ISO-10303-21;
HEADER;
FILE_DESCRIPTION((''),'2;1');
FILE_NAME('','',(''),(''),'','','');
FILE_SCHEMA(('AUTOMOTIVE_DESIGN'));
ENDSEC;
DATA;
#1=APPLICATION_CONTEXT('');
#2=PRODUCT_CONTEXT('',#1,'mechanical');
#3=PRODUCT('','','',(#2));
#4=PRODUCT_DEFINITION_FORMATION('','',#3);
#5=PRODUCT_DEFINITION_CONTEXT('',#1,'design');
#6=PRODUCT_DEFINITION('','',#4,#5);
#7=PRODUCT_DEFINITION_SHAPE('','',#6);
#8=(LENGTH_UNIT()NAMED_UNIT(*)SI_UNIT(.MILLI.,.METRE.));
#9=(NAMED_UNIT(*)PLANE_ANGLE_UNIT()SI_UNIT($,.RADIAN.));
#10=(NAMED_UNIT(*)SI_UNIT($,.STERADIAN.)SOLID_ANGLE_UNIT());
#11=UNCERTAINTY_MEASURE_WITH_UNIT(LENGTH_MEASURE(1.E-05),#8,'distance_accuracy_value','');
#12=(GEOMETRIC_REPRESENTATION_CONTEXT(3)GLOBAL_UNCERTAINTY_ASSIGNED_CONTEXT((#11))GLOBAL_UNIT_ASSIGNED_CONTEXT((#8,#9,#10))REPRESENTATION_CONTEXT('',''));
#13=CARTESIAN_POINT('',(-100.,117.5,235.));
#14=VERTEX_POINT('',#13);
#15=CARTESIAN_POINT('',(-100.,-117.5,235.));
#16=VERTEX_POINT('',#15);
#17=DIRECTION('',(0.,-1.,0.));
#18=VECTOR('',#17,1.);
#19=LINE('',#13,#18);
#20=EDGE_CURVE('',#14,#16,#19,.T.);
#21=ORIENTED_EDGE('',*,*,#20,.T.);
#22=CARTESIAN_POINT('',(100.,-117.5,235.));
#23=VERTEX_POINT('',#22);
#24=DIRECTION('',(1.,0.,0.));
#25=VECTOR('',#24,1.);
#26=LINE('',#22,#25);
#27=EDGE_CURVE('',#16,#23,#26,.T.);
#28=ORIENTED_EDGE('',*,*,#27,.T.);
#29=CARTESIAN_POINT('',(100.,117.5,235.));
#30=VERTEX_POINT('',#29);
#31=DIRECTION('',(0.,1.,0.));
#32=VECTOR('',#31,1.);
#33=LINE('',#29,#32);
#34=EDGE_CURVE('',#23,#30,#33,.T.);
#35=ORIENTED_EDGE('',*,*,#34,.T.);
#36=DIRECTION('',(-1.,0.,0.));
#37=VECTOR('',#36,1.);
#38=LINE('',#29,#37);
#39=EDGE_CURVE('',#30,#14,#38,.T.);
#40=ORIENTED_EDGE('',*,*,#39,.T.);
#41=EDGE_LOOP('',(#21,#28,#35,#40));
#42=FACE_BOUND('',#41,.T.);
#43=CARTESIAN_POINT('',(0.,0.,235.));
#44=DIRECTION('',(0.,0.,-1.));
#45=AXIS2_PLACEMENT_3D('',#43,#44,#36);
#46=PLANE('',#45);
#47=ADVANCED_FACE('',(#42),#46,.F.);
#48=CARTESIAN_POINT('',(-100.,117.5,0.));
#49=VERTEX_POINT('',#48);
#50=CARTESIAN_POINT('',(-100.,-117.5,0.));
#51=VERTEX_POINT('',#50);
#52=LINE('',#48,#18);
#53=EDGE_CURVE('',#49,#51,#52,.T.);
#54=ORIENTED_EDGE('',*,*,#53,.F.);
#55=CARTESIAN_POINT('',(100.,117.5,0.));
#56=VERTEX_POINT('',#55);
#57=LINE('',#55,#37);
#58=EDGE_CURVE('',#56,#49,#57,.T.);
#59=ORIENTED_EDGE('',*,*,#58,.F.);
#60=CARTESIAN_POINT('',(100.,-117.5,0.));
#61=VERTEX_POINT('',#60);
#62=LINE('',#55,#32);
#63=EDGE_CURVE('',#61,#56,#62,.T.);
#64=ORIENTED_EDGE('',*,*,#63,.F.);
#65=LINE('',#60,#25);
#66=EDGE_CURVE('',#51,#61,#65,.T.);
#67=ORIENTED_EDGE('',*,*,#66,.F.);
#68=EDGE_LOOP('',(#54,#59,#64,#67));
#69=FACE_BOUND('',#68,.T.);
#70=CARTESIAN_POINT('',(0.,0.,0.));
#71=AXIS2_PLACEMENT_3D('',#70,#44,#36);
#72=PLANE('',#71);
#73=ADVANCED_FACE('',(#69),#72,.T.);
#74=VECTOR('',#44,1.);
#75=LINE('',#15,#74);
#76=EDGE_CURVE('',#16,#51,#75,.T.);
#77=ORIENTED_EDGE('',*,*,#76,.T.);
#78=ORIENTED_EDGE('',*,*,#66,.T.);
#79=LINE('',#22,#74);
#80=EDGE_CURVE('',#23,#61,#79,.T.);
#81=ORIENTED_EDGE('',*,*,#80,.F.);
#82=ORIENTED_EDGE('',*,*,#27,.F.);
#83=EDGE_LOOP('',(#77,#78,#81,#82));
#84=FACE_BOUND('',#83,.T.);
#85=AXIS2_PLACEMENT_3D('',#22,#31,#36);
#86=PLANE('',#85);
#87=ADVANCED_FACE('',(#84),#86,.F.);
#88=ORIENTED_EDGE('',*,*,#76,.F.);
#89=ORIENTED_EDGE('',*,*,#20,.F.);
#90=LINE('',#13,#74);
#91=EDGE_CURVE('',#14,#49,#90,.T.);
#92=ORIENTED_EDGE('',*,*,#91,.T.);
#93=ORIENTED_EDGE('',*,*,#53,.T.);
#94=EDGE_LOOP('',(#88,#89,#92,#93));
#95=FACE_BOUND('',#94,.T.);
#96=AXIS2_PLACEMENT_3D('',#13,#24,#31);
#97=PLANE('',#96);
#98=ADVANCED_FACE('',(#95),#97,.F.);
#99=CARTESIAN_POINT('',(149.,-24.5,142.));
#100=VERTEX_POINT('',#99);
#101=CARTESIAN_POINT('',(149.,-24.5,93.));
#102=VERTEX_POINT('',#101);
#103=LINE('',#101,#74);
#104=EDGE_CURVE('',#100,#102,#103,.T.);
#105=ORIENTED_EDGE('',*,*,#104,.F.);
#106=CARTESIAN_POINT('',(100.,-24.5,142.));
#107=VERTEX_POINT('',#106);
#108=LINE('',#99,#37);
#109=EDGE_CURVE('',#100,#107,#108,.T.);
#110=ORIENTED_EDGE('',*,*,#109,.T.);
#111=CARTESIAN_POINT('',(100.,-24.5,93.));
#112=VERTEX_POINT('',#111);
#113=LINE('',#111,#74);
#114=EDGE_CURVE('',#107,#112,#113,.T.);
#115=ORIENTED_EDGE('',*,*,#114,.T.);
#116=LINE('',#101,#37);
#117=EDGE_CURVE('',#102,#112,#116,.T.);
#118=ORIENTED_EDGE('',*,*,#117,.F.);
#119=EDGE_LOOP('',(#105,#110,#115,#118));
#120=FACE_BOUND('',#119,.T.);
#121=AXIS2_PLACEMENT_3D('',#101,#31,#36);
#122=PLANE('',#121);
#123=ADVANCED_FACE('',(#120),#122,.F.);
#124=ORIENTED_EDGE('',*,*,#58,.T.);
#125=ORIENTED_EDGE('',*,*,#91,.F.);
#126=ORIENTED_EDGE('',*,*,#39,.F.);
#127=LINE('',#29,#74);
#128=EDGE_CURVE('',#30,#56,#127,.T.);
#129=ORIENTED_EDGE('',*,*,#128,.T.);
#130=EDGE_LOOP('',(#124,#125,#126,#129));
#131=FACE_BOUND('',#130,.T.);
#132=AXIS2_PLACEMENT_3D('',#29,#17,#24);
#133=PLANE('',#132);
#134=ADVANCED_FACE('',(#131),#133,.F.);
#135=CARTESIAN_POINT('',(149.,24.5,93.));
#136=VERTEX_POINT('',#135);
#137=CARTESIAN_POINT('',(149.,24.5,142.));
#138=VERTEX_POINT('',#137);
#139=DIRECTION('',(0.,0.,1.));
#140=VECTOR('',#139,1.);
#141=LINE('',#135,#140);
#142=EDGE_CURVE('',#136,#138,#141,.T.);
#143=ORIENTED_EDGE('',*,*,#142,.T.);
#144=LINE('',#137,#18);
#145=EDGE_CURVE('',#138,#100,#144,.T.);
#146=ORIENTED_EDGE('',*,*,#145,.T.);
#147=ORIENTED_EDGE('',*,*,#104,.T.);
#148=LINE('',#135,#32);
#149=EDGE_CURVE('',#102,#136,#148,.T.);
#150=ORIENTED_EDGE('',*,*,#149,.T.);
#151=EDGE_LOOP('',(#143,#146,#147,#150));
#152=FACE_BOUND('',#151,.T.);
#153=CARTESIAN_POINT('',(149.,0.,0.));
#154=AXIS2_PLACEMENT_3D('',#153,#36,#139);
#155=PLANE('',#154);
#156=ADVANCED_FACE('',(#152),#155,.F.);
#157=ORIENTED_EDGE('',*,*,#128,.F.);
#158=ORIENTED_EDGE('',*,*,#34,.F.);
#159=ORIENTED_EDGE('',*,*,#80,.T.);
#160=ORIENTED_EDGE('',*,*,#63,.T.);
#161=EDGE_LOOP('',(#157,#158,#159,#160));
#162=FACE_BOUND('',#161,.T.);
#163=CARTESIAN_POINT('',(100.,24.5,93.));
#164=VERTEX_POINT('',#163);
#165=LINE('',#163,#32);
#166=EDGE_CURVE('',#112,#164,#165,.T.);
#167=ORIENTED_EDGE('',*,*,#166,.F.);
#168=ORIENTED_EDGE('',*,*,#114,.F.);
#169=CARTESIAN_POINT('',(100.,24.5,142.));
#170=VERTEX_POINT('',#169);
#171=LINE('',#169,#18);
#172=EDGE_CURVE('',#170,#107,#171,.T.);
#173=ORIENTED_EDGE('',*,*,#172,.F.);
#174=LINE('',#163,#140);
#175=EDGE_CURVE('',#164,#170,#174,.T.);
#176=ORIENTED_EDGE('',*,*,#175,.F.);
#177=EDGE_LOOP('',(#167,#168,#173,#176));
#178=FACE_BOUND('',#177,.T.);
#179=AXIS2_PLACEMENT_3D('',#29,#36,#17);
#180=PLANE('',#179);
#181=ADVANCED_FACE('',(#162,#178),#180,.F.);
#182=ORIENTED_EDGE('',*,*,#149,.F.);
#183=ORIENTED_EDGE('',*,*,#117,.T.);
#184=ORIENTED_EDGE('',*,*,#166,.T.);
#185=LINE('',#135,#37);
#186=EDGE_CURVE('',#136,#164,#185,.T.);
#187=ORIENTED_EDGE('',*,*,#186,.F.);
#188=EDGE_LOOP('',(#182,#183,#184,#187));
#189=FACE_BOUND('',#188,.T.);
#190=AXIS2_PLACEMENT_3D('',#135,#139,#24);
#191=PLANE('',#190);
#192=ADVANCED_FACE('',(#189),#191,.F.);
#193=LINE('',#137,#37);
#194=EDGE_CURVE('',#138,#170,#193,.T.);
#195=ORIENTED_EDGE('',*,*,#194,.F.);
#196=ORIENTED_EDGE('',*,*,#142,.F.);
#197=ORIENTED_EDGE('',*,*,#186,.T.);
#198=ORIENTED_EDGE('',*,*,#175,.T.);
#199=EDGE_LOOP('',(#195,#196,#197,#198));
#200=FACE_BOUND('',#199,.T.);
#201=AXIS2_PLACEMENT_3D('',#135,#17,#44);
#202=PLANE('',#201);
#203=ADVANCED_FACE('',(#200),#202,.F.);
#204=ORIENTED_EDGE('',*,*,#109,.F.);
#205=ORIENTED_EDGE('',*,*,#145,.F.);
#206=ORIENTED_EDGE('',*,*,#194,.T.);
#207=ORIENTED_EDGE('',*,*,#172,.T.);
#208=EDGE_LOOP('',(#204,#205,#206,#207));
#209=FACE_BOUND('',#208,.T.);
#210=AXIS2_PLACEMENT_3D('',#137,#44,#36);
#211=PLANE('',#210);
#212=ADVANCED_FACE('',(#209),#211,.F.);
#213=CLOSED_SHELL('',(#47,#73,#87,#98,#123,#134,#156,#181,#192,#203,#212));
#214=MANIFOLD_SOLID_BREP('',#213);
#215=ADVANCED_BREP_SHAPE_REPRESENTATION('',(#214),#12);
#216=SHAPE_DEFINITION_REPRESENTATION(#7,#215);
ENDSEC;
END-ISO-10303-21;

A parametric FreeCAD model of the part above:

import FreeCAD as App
import Part
import Sketcher

V = App.Vector
Q = App.Units.Quantity

doc = App.newDocument("Part")
body = doc.addObject("PartDesign::Body", "Body")

sketch1 = body.newObject("Sketcher::SketchObject", "Sketch")
sketch1.AttachmentSupport = (doc.getObject("XY_Plane"), [""])
sketch1.MapMode = "FlatFace"
sketch1.addGeometry([
    Part.LineSegment(V(-100, 118, 0), V(-100, -118, 0)),
    Part.LineSegment(V(-100, -118, 0), V(100, -118, 0)),
    Part.LineSegment(V(100, -118, 0), V(100, 118, 0)),
    Part.LineSegment(V(100, 118, 0), V(-100, 118, 0)),
], False)
sketch1.addConstraint([
    Sketcher.Constraint("Coincident", 0, 2, 1, 1),
    Sketcher.Constraint("Coincident", 1, 2, 2, 1),
    Sketcher.Constraint("Coincident", 2, 2, 3, 1),
    Sketcher.Constraint("Coincident", 3, 2, 0, 1),
    Sketcher.Constraint("Vertical", 0),
    Sketcher.Constraint("Horizontal", 1),
    Sketcher.Constraint("Vertical", 2),
    Sketcher.Constraint("Horizontal", 3),
    Sketcher.Constraint("Symmetric", 0, 2, 2, 2, -1, 1),
    Sketcher.Constraint("DistanceX", 1, 1, 1, 2, Q("200 mm")),
    Sketcher.Constraint("DistanceY", 0, 2, 0, 1, Q("235 mm")),
])
pad1 = body.newObject("PartDesign::Pad", "Pad")
pad1.Profile = sketch1
pad1.Length = 235

sketch2 = body.newObject("Sketcher::SketchObject", "Sketch001")
sketch2.AttachmentSupport = (doc.getObject("YZ_Plane"), [""])
sketch2.MapMode = "FlatFace"
sketch2.AttachmentOffset = App.Placement(V(0, 0, 100), App.Rotation())
sketch2.addGeometry([
    Part.LineSegment(V(24, 142, 0), V(-24, 142, 0)),
    Part.LineSegment(V(-24, 142, 0), V(-24, 93, 0)),
    Part.LineSegment(V(-24, 93, 0), V(24, 93, 0)),
    Part.LineSegment(V(24, 93, 0), V(24, 142, 0)),
], False)
sketch2.addConstraint([
    Sketcher.Constraint("Coincident", 0, 2, 1, 1),
    Sketcher.Constraint("Coincident", 1, 2, 2, 1),
    Sketcher.Constraint("Coincident", 2, 2, 3, 1),
    Sketcher.Constraint("Coincident", 3, 2, 0, 1),
    Sketcher.Constraint("Horizontal", 0),
    Sketcher.Constraint("Vertical", 1),
    Sketcher.Constraint("Horizontal", 2),
    Sketcher.Constraint("Vertical", 3),
    Sketcher.Constraint("Equal", 2, 1),
    Sketcher.Constraint("DistanceX", 0, 2, 0, 1, Q("49 mm")),
    Sketcher.Constraint("DistanceY", -1, 1, 0, 2, Q("142 mm")),
    Sketcher.Constraint("DistanceX", 0, 2, -1, 1, Q("24.5 mm")),
])
pad2 = body.newObject("PartDesign::Pad", "Pad001")
pad2.Profile = sketch2
pad2.Length = 49

doc.recompute()
